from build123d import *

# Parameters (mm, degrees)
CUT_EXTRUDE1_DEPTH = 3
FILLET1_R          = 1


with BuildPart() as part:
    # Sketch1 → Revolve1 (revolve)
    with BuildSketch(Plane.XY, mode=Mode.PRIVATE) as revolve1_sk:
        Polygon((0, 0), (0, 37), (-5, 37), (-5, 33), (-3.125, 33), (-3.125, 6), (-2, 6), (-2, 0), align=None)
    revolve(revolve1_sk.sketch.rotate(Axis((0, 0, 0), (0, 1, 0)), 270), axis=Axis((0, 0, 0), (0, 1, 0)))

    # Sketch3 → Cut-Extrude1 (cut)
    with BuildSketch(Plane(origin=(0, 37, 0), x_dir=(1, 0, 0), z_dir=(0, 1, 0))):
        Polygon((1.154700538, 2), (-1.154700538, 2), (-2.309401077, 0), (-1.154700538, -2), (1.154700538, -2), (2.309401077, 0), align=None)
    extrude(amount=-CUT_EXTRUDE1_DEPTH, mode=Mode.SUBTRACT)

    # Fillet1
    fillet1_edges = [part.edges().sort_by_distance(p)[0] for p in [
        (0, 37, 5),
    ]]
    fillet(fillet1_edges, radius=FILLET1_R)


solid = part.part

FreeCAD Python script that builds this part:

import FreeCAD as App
import Part
import Sketcher
from FreeCAD import Vector
Q = App.Units.Quantity


def edges_at(feature, points):
    """Names of the edges that pass closest to the given points."""
    edges = feature.Shape.Edges
    near = lambda p: min(range(len(edges)), key=lambda i: edges[i].distToShape(Part.Vertex(*p))[0])
    return sorted({f"Edge{near(p) + 1}" for p in points})


def add_polygon(sketch, points):
    """Adds a closed chain of lines whose ends are joined by coincident constraints."""
    first, n = sketch.GeometryCount, len(points)
    for a, b in zip(points, points[1:] + points[:1]):
        sketch.addGeometry(Part.LineSegment(App.Vector(*a, 0), App.Vector(*b, 0)), False)
    for i in range(n):
        sketch.addConstraint(Sketcher.Constraint("Coincident", first + i, 2, first + (i + 1) % n, 1))

doc = App.newDocument("Part")
body = doc.addObject("PartDesign::Body", "Body")

# Sketch on XY plane
sketch1 = doc.addObject("Sketcher::SketchObject", "Sketch")
body.addObject(sketch1)
sketch1.AttachmentSupport = (doc.XY_Plane, [""])
sketch1.MapMode = "FlatFace"
add_polygon(sketch1, [(0, 0), (0, 37), (-5, 37), (-5, 33), (-3.1, 33), (-3.1, 6), (-2, 6), (-2, 0)])  # lines 0-7
sketch1.addConstraint([
    Sketcher.Constraint("Vertical", 0),
    Sketcher.Constraint("Horizontal", 1),
    Sketcher.Constraint("Vertical", 2),
    Sketcher.Constraint("Horizontal", 3),
    Sketcher.Constraint("Vertical", 4),
    Sketcher.Constraint("Horizontal", 5),
    Sketcher.Constraint("Vertical", 6),
    Sketcher.Constraint("Horizontal", 7),
    Sketcher.Constraint("Coincident", 7, 2, -1, 1),
    Sketcher.Constraint("DistanceX", 1, 2, 1, 1, Q("5 mm")),
    Sketcher.Constraint("DistanceX", 7, 1, 7, 2, Q("2 mm")),
    Sketcher.Constraint("DistanceY", 0, 1, 0, 2, Q("37 mm")),
    Sketcher.Constraint("DistanceY", 2, 2, 2, 1, Q("4 mm")),
    Sketcher.Constraint("DistanceY", 4, 2, 4, 1, Q("27 mm")),
    Sketcher.Constraint("DistanceX", 3, 1, 3, 2, Q("1.875 mm")),
])
revolution = doc.addObject("PartDesign::Revolution", "Revolution")
body.addObject(revolution)
revolution.Profile = sketch1
revolution.ReferenceAxis = (sketch1, ["V_Axis"])
revolution.Angle = 360

# Sketch on XZ plane
sketch2 = doc.addObject("Sketcher::SketchObject", "Sketch001")
body.addObject(sketch2)
sketch2.AttachmentSupport = (doc.XZ_Plane, [""])
sketch2.MapMode = "FlatFace"
sketch2.AttachmentOffset = App.Placement(Vector(0, 0, -37), App.Rotation())
add_polygon(sketch2, [(1.2, -2), (-1.2, -2), (-2.3, 0), (-1.2, 2), (1.2, 2), (2.3, 0)])  # lines 0-5
sketch2.addConstraint([
    Sketcher.Constraint("Horizontal", 0),
    Sketcher.Constraint("Horizontal", 3),
    Sketcher.Constraint("Symmetric", 0, 2, 3, 2, -1, 1),
    Sketcher.Constraint("Symmetric", 1, 2, 4, 2, -1, 1),
    Sketcher.Constraint("PointOnObject", 1, 2, -1),
    Sketcher.Constraint("Parallel", 2, 5),
    Sketcher.Constraint("Vertical", 0, 2, 2, 2),
    Sketcher.Constraint("Angle", 1, Q("120 deg")),
    Sketcher.Constraint("DistanceY", 0, 2, -1, 1, Q("2 mm")),
    Sketcher.Constraint("DistanceX", 0, 2, 0, 1, Q("2.309401 mm")),
])
pocket1 = doc.addObject("PartDesign::Pocket", "Pocket")
body.addObject(pocket1)
pocket1.Profile = sketch2
pocket1.Length = 3
pocket1.Reversed = True
doc.recompute()

fillet = doc.addObject("PartDesign::Fillet", "Fillet")
body.addObject(fillet)
fillet.Base = (pocket1, edges_at(pocket1, [(0, 37, 5)]))
fillet.Radius = 1

doc.recompute()
